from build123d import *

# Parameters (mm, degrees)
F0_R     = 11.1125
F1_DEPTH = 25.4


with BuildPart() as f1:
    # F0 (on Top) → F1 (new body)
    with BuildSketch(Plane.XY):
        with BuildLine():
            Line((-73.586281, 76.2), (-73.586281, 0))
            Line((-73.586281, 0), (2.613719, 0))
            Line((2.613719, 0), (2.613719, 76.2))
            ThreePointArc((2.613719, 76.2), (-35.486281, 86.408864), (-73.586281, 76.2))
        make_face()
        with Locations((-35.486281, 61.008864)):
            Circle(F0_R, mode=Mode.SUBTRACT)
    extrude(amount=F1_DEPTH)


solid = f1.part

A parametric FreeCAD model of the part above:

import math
import FreeCAD as App
import Part
import Sketcher

V = App.Vector
Q = App.Units.Quantity

doc = App.newDocument("Part")
body = doc.addObject("PartDesign::Body", "Body")

sketch1 = body.newObject("Sketcher::SketchObject", "Sketch")
sketch1.AttachmentSupport = (doc.getObject("XY_Plane"), [""])
sketch1.MapMode = "FlatFace"
sketch1.addGeometry([
    Part.LineSegment(V(-73.586281, 76.2, 0), V(-73.586281, 0, 0)),
    Part.LineSegment(V(-73.586281, 0, 0), V(2.613719, 0, 0)),
    Part.LineSegment(V(2.613719, 0, 0), V(2.613719, 76.2, 0)),
    Part.ArcOfCircle(Part.Circle(V(-35.486281, 10.208863, 0), V(0, 0, 1), 76.200001), math.radians(60.000001), math.radians(119.999999)),
    Part.Circle(V(-35.486281, 61.008864, 0), V(0, 0, 1), 11.1125),
], False)
sketch1.addConstraint([
    Sketcher.Constraint("Coincident", 0, 2, 1, 1),
    Sketcher.Constraint("Coincident", 1, 2, 2, 1),
    Sketcher.Constraint("Coincident", 2, 2, 3, 1),
    Sketcher.Constraint("Coincident", 3, 2, 0, 1),
    Sketcher.Constraint("Vertical", 0),
    Sketcher.Constraint("Horizontal", 1),
    Sketcher.Constraint("Vertical", 2),
    Sketcher.Constraint("PointOnObject", 0, 2, -1),
    Sketcher.Constraint("Horizontal", 2, 2, 3, 2),
    Sketcher.Constraint("Vertical", 3, 3, 4, 3),
    Sketcher.Constraint("Equal", 1, 0),
    Sketcher.Constraint("Radius", 3, Q("3.0000001 in")),
    Sketcher.Constraint("DistanceX", 1, 1, 1, 2, Q("3 in")),
    Sketcher.Constraint("Diameter", 4, Q("0.875 in")),
    Sketcher.Constraint("DistanceY", 3, 3, 4, 3, Q("2.0000001 in")),
    Sketcher.Constraint("DistanceX", 3, 3, -1, 1, Q("35.486281 mm")),
])
pad1 = body.newObject("PartDesign::Pad", "Pad")
pad1.Profile = sketch1
pad1.Length = Q("1 in")

doc.recompute()
